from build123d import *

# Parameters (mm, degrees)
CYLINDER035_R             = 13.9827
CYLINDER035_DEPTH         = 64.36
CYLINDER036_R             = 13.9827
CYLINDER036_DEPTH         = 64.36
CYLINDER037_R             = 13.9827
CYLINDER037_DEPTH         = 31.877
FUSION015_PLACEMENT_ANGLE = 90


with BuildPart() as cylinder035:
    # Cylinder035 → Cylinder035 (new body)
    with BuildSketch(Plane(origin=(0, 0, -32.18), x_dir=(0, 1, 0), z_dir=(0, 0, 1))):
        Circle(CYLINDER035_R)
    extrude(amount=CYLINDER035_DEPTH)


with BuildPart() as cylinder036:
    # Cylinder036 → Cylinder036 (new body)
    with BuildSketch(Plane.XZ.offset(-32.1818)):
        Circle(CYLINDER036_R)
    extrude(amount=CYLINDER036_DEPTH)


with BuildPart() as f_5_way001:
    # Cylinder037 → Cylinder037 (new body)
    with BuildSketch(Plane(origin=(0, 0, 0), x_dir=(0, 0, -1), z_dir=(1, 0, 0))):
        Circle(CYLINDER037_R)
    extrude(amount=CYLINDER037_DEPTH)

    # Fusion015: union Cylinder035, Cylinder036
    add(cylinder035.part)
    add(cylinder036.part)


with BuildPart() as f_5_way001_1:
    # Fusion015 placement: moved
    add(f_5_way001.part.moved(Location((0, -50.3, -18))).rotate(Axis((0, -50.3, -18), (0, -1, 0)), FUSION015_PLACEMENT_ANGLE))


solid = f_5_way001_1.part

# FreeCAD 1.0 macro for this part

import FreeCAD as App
import Part
import Sketcher
Q = App.Units.Quantity

doc = App.newDocument("Part")
params = doc.addObject("Spreadsheet::Sheet", "Params")
for row, (alias, value) in enumerate([
    ("sketch1_diameter", "1.101 in"),
    ("pad1_length", "64.36 mm"),
    ("sketch2_diameter", "1.101 in"),
    ("pad2_length", "64.36 mm"),
    ("sketch3_diameter", "1.101 in"),
    ("pad3_length", "1.255 in"),
], start=1):
    params.set(f"A{row}", alias)
    params.set(f"B{row}", "=" + value)
    params.setAlias(f"B{row}", alias)

body = doc.addObject("PartDesign::Body", "Body")

# Sketch on XY plane
sketch1 = body.newObject("Sketcher::SketchObject", "Sketch")
sketch1.AttachmentSupport = (doc.getObject("XY_Plane"), [""])
sketch1.MapMode = "FlatFace"
sketch1.AttachmentOffset = App.Placement(App.Vector(0, 0, -32.18), App.Rotation())
sketch1.addGeometry(Part.Circle(App.Vector(0, 0, 0), App.Vector(0, 0, 1), 14), False)
sketch1.addConstraint([
    Sketcher.Constraint("Coincident", 0, 3, -1, 1),
    Sketcher.Constraint("Diameter", 0, Q("1.101 in")),
])
sketch1.setExpression("Constraints[1]", "Params.sketch1_diameter")
pad1 = body.newObject("PartDesign::Pad", "Pad")
pad1.Profile = sketch1
pad1.setExpression("Length", "Params.pad1_length")
body2 = doc.addObject("PartDesign::Body", "Body001")

# Sketch on XZ plane
sketch2 = body2.newObject("Sketcher::SketchObject", "Sketch001")
sketch2.AttachmentSupport = (doc.getObject("XZ_Plane001"), [""])
sketch2.MapMode = "FlatFace"
sketch2.AttachmentOffset = App.Placement(App.Vector(0, 0, -1.267 * 25.4), App.Rotation())
sketch2.addGeometry(Part.Circle(App.Vector(0, 0, 0), App.Vector(0, 0, 1), 14), False)
sketch2.addConstraint([
    Sketcher.Constraint("Coincident", 0, 3, -1, 1),
    Sketcher.Constraint("Diameter", 0, Q("1.101 in")),
])
sketch2.setExpression("Constraints[1]", "Params.sketch2_diameter")
pad2 = body2.newObject("PartDesign::Pad", "Pad001")
pad2.Profile = sketch2
pad2.setExpression("Length", "Params.pad2_length")
body3 = doc.addObject("PartDesign::Body", "Body002")

# Sketch on YZ plane
sketch3 = body3.newObject("Sketcher::SketchObject", "Sketch002")
sketch3.AttachmentSupport = (doc.getObject("YZ_Plane002"), [""])
sketch3.MapMode = "FlatFace"
sketch3.addGeometry(Part.Circle(App.Vector(0, 0, 0), App.Vector(0, 0, 1), 14), False)
sketch3.addConstraint([
    Sketcher.Constraint("Coincident", 0, 3, -1, 1),
    Sketcher.Constraint("Diameter", 0, Q("1.101 in")),
])
sketch3.setExpression("Constraints[1]", "Params.sketch3_diameter")
pad3 = body3.newObject("PartDesign::Pad", "Pad002")
pad3.Profile = sketch3
pad3.setExpression("Length", "Params.pad3_length")
doc.recompute()

boolean = body3.newObject("PartDesign::Boolean", "Boolean")
boolean.Type = "Fuse"
boolean.addObjects([body])
doc.recompute()

boolean2 = body3.newObject("PartDesign::Boolean", "Boolean001")
boolean2.Type = "Fuse"
boolean2.addObjects([body2])
body4 = doc.addObject("PartDesign::Body", "Body003")
doc.recompute()

body3.Placement = App.Placement(App.Vector(0, -50.3, -18), App.Rotation(App.Vector(0, -1, 0), 90))
boolean3 = body4.newObject("PartDesign::Boolean", "Boolean002")
boolean3.Type = "Fuse"
boolean3.addObjects([body3])

doc.recompute()
